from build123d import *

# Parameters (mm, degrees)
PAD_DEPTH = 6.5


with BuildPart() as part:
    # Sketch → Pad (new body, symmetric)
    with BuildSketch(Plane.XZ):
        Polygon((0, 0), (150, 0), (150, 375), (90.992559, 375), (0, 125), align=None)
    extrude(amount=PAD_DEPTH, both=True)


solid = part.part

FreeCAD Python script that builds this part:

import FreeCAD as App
import Part
import Sketcher

V = App.Vector
Q = App.Units.Quantity

doc = App.newDocument("Part")
body = doc.addObject("PartDesign::Body", "Body")

sketch1 = body.newObject("Sketcher::SketchObject", "Sketch")
sketch1.AttachmentSupport = (doc.getObject("XZ_Plane"), [""])
sketch1.MapMode = "FlatFace"
sketch1.addGeometry(Part.LineSegment(V(0, 0, 0), V(150, 0, 0)), False)
sketch1.addGeometry(Part.LineSegment(V(150, 0, 0), V(150, 375, 0)), False)
sketch1.addGeometry(Part.LineSegment(V(150, 375, 0), V(90.992559, 375, 0)), False)
sketch1.addGeometry(Part.LineSegment(V(90.992559, 375, 0), V(0, 125, 0)), False)
sketch1.addGeometry(Part.LineSegment(V(0, 125, 0), V(0, 0, 0)), False)
sketch1.addConstraint(Sketcher.Constraint("Coincident", 0, 2, 1, 1))
sketch1.addConstraint(Sketcher.Constraint("Coincident", 1, 2, 2, 1))
sketch1.addConstraint(Sketcher.Constraint("Coincident", 2, 2, 3, 1))
sketch1.addConstraint(Sketcher.Constraint("Coincident", 3, 2, 4, 1))
sketch1.addConstraint(Sketcher.Constraint("Coincident", 4, 2, 0, 1))
sketch1.addConstraint(Sketcher.Constraint("Horizontal", 0))
sketch1.addConstraint(Sketcher.Constraint("Vertical", 1))
sketch1.addConstraint(Sketcher.Constraint("Horizontal", 2))
sketch1.addConstraint(Sketcher.Constraint("Vertical", 4))
sketch1.addConstraint(Sketcher.Constraint("Coincident", 4, 2, -1, 1))
sketch1.addConstraint(Sketcher.Constraint("DistanceX", 0, 1, 0, 2, 150.0))
sketch1.addConstraint(Sketcher.Constraint("DistanceY", 1, 1, 1, 2, 375.0))
sketch1.addConstraint(Sketcher.Constraint("DistanceY", 4, 2, 4, 1, 125.0))
sketch1.addConstraint(Sketcher.Constraint("Angle", 3, Q("-110 deg")))
pad1 = body.newObject("PartDesign::Pad", "Pad")
pad1.Profile = sketch1
pad1.Length = 13
pad1.Midplane = True

doc.recompute()
